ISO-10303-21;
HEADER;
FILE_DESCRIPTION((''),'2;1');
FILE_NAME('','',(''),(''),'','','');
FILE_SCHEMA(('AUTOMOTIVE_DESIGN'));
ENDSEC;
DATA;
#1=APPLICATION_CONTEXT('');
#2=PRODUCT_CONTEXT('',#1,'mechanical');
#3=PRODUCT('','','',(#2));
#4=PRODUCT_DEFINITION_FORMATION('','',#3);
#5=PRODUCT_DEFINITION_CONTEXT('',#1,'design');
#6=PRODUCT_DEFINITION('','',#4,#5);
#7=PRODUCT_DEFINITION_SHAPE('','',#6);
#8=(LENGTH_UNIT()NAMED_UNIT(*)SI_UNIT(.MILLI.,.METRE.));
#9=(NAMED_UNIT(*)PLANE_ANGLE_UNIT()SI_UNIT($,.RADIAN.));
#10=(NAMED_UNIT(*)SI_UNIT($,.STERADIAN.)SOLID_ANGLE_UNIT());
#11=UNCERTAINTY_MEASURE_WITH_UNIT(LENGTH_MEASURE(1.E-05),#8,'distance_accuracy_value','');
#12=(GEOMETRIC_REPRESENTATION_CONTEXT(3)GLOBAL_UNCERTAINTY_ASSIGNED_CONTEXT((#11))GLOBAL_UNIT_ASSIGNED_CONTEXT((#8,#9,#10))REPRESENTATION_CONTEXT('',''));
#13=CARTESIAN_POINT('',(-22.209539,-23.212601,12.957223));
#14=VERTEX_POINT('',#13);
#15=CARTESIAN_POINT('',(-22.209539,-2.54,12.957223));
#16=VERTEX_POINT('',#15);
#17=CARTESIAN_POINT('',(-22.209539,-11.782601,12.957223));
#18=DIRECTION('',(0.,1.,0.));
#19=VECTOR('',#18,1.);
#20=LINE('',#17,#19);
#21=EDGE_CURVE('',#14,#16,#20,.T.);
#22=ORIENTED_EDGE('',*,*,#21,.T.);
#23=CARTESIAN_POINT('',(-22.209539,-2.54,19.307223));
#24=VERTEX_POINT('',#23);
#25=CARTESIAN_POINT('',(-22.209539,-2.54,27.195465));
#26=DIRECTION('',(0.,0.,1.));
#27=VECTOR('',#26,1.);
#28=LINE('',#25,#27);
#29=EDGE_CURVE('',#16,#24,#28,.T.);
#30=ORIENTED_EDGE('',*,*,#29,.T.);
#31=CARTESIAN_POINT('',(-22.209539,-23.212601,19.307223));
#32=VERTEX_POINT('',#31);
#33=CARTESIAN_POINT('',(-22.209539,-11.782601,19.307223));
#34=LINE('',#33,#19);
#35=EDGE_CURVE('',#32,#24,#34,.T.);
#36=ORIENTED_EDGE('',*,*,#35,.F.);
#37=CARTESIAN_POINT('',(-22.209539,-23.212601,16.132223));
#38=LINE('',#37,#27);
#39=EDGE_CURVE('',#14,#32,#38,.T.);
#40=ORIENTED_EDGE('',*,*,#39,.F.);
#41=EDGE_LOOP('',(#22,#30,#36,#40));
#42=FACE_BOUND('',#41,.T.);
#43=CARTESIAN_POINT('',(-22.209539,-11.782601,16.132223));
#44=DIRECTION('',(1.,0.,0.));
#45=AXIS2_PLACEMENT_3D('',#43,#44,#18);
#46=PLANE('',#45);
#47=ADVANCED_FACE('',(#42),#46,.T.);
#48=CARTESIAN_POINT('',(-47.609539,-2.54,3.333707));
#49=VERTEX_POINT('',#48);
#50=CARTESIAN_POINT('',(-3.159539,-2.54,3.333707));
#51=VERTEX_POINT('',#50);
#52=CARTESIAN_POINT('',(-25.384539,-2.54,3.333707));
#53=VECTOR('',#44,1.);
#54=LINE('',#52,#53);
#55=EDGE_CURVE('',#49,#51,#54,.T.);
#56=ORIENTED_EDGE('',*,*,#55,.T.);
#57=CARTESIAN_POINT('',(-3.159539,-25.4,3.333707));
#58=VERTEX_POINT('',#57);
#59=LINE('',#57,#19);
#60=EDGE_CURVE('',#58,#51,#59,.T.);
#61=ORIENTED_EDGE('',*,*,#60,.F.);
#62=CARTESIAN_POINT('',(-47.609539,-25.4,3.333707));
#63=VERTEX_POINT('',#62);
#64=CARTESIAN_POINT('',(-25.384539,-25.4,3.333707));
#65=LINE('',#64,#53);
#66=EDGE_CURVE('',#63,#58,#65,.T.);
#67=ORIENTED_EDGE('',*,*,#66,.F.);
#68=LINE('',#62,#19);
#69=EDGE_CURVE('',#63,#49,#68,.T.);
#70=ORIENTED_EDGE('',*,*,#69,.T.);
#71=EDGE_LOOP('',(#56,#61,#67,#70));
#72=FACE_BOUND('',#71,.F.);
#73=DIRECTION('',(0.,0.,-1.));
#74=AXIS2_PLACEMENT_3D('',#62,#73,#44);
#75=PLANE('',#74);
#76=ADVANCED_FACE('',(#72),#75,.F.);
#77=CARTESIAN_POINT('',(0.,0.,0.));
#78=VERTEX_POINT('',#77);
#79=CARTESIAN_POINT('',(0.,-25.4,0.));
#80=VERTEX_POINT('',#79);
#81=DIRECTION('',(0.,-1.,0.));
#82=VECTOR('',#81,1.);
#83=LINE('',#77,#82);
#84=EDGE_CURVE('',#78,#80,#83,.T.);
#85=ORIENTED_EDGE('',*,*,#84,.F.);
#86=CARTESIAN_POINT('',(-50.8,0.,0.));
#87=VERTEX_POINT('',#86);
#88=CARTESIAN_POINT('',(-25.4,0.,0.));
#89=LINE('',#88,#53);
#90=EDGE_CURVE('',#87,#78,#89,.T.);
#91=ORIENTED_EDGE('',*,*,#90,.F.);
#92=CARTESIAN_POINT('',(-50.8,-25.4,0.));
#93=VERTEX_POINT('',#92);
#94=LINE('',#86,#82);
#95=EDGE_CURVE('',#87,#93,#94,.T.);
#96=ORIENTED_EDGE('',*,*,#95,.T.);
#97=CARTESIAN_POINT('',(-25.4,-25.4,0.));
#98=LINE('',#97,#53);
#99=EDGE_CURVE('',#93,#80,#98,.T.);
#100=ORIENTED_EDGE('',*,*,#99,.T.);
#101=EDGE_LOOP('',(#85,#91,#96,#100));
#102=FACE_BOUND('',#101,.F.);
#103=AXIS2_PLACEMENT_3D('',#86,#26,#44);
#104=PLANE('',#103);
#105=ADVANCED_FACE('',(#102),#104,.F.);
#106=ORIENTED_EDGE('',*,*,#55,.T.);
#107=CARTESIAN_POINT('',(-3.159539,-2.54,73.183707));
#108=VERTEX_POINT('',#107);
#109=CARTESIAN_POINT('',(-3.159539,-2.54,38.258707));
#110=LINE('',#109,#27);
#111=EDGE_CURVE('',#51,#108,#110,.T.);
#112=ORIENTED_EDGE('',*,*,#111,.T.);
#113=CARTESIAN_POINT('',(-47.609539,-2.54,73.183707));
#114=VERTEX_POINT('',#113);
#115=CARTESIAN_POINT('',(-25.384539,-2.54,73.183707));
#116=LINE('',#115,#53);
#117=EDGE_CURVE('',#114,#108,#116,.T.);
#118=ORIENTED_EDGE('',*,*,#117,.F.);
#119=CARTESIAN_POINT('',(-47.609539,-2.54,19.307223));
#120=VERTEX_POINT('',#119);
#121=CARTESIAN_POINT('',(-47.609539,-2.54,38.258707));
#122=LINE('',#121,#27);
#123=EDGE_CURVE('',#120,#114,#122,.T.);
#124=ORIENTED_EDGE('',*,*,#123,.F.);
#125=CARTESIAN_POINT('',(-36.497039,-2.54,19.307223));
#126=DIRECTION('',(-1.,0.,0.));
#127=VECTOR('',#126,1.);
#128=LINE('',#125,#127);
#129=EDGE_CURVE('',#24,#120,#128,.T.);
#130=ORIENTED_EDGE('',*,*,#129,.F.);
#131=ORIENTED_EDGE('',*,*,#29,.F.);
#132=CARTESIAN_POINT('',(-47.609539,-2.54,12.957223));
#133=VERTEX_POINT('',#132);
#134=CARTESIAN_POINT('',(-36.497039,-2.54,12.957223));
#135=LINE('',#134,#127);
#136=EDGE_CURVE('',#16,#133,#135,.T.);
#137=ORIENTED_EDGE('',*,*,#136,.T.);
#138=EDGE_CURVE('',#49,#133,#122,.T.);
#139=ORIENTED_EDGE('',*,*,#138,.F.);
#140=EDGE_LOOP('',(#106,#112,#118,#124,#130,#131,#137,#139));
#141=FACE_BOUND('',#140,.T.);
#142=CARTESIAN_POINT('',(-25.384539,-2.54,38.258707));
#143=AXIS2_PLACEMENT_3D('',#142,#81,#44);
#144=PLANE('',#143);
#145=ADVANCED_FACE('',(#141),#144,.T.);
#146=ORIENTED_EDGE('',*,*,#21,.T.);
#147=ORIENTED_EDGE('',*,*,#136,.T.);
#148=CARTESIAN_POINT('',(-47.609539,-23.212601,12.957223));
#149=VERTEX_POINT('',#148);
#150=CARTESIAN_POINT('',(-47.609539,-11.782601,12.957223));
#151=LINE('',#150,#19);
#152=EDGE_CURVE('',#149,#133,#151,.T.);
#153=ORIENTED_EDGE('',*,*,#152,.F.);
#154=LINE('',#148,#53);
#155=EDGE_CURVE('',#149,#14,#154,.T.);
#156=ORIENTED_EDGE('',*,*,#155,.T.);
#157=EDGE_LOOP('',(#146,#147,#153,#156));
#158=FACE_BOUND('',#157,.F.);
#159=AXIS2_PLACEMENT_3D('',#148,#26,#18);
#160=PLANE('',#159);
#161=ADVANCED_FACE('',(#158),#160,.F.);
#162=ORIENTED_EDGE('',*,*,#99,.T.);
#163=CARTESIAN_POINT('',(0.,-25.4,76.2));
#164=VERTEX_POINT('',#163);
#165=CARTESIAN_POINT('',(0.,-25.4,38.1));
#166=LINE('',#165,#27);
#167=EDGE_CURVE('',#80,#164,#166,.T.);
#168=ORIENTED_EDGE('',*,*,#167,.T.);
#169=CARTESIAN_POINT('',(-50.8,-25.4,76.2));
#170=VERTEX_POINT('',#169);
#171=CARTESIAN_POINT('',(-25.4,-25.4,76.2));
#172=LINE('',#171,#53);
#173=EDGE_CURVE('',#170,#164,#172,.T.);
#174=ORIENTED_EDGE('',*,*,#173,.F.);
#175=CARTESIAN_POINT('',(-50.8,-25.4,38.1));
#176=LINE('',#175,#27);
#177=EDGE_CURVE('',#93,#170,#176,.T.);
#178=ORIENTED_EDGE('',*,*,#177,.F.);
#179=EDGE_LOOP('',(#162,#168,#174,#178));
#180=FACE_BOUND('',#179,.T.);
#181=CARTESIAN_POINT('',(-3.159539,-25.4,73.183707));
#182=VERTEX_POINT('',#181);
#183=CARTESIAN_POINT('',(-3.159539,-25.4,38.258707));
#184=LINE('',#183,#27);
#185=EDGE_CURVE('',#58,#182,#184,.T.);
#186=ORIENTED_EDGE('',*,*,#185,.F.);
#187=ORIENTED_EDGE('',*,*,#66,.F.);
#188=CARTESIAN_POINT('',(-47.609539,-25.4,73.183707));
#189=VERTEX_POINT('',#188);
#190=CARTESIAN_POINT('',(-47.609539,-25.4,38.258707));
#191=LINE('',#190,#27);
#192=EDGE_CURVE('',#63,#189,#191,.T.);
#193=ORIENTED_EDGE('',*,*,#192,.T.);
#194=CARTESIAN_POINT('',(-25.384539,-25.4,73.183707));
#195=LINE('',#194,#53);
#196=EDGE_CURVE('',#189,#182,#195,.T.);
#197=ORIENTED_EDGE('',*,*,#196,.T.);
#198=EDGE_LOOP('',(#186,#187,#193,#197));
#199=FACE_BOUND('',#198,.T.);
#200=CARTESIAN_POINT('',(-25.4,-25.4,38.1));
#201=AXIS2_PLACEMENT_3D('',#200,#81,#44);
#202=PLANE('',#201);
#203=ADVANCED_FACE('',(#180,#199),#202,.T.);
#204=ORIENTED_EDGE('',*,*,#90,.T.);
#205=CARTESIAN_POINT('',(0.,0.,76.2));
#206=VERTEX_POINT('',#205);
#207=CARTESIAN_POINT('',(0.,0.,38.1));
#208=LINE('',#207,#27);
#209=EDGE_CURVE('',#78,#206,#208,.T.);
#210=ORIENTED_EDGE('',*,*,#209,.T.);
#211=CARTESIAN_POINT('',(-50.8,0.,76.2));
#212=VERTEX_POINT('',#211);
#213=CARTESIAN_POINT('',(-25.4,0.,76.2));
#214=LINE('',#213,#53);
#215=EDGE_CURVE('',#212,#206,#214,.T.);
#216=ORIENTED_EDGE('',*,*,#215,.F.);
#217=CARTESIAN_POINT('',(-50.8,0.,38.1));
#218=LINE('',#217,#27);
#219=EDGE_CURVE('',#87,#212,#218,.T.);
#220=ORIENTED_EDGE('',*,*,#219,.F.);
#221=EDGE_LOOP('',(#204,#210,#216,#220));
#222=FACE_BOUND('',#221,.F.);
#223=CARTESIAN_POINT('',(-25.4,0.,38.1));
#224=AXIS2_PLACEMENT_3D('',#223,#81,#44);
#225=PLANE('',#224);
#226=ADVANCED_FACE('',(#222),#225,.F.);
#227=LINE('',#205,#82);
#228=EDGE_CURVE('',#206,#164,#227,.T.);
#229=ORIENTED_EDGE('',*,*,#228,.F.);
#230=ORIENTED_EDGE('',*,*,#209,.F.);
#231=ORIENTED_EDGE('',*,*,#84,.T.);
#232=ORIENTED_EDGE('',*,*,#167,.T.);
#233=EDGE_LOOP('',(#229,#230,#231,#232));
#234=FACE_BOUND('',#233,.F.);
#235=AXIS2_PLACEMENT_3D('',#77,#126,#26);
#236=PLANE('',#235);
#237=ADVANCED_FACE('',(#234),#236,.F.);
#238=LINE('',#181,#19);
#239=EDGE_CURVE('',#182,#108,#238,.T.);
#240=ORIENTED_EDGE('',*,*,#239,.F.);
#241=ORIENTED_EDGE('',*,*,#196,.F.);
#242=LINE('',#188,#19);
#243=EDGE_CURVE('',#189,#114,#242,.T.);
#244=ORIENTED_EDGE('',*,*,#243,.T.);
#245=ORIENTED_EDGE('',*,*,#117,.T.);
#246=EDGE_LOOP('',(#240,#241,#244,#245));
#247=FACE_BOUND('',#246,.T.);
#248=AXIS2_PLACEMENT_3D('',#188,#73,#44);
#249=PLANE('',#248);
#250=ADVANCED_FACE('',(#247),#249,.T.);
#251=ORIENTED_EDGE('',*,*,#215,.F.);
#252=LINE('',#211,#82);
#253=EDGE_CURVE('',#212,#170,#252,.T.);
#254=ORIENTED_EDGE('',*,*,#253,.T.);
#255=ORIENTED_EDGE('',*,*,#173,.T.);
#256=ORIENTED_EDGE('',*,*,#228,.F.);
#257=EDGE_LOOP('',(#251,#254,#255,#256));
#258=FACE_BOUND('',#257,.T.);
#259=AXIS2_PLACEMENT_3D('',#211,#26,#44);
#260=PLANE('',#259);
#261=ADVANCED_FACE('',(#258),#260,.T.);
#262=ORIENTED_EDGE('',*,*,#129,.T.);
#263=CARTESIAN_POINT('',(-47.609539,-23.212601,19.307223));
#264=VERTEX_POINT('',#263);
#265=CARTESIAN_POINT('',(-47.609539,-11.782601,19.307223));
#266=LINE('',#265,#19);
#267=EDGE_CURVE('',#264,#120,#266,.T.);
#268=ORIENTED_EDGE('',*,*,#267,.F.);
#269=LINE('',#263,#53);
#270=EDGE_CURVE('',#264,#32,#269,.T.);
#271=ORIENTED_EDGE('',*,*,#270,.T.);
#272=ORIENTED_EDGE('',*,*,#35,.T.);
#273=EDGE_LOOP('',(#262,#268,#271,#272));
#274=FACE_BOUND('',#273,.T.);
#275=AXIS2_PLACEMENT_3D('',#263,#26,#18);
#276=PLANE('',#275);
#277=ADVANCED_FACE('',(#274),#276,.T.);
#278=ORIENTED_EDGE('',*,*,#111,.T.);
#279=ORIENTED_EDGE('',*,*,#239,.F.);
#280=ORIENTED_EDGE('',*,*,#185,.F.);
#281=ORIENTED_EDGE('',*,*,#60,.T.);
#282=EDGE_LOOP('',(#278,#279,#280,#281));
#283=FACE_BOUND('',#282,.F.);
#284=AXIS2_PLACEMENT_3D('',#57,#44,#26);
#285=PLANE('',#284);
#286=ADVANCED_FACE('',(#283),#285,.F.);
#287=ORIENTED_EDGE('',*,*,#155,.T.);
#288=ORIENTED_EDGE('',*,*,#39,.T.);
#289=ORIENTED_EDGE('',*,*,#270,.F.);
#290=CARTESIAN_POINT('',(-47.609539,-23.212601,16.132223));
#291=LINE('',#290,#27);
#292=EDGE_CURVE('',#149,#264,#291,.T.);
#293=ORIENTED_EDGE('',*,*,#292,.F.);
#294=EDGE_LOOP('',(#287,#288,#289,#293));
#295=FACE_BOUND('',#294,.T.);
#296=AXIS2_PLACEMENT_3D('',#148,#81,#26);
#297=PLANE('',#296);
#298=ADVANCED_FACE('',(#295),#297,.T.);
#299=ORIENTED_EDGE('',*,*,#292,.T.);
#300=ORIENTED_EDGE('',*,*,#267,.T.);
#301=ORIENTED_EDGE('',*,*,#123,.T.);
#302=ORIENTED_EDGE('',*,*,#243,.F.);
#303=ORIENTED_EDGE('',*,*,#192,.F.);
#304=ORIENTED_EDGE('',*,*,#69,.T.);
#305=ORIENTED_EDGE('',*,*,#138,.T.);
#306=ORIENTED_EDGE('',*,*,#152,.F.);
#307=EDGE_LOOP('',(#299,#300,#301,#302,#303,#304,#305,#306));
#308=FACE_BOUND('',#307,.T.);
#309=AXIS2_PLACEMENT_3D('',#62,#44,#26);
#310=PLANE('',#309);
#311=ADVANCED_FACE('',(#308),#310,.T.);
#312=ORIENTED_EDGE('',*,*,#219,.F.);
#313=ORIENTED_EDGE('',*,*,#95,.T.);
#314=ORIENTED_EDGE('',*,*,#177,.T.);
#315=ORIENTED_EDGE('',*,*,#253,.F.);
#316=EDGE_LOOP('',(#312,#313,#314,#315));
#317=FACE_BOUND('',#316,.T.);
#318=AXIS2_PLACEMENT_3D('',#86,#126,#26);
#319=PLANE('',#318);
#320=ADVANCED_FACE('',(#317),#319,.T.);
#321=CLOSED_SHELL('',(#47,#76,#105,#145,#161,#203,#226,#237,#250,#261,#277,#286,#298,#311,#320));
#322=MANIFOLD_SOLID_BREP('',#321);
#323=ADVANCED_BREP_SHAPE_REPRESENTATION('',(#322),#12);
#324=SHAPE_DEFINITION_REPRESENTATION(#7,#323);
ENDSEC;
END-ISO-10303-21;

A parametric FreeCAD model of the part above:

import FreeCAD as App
import Part
import Sketcher

V = App.Vector
Q = App.Units.Quantity


def add_polygon(sketch, points):
    """Adds a closed chain of lines whose ends are joined by coincident constraints."""
    first, n = sketch.GeometryCount, len(points)
    for a, b in zip(points, points[1:] + points[:1]):
        sketch.addGeometry(Part.LineSegment(App.Vector(*a, 0), App.Vector(*b, 0)), False)
    for i in range(n):
        sketch.addConstraint(Sketcher.Constraint("Coincident", first + i, 2, first + (i + 1) % n, 1))

doc = App.newDocument("Part")
body = doc.addObject("PartDesign::Body", "Body")

# Sketch on XZ plane
sketch1 = body.newObject("Sketcher::SketchObject", "Sketch")
sketch1.AttachmentSupport = (doc.getObject("XZ_Plane"), [""])
sketch1.MapMode = "FlatFace"
add_polygon(sketch1, [(-51, 76), (-51, 0), (0, 0), (0, 76)])  # lines 0-3
sketch1.addConstraint(Sketcher.Constraint("Vertical", 0))
sketch1.addConstraint(Sketcher.Constraint("Horizontal", 1))
sketch1.addConstraint(Sketcher.Constraint("Vertical", 2))
sketch1.addConstraint(Sketcher.Constraint("Horizontal", 3))
sketch1.addConstraint(Sketcher.Constraint("Coincident", 1, 2, -1, 1))
sketch1.addConstraint(Sketcher.Constraint("DistanceX", 1, 1, 1, 2, Q("2 in")))
sketch1.addConstraint(Sketcher.Constraint("DistanceY", 0, 2, 0, 1, Q("3 in")))
pad1 = body.newObject("PartDesign::Pad", "Pad")
pad1.Profile = sketch1
pad1.Length = Q("1 in")

# Sketch on XZ plane
sketch2 = body.newObject("Sketcher::SketchObject", "Sketch001")
sketch2.AttachmentSupport = (doc.getObject("XZ_Plane"), [""])
sketch2.MapMode = "FlatFace"
sketch2.AttachmentOffset = App.Placement(V(0, 0, 1 * 25.4), App.Rotation())
add_polygon(sketch2, [(-48, 73), (-48, 3), (-3, 3), (-3, 73)])  # lines 0-3
sketch2.addConstraint(Sketcher.Constraint("Vertical", 0))
sketch2.addConstraint(Sketcher.Constraint("Horizontal", 1))
sketch2.addConstraint(Sketcher.Constraint("Vertical", 2))
sketch2.addConstraint(Sketcher.Constraint("Horizontal", 3))
sketch2.addConstraint(Sketcher.Constraint("DistanceX", 1, 1, 1, 2, Q("1.75 in")))
sketch2.addConstraint(Sketcher.Constraint("DistanceY", 0, 2, 0, 1, Q("2.75 in")))
sketch2.addConstraint(Sketcher.Constraint("DistanceX", 0, 2, -1, 1, 47.609539))
sketch2.addConstraint(Sketcher.Constraint("DistanceY", -1, 1, 0, 2, 3.333707))
pocket1 = body.newObject("PartDesign::Pocket", "Pocket")
pocket1.Profile = sketch2
pocket1.Length = Q("0.9 in")

# Sketch on YZ plane
sketch3 = body.newObject("Sketcher::SketchObject", "Sketch002")
sketch3.AttachmentSupport = (doc.getObject("YZ_Plane"), [""])
sketch3.MapMode = "FlatFace"
sketch3.AttachmentOffset = App.Placement(V(0, 0, -47.609539), App.Rotation())
add_polygon(sketch3, [(-23, 19), (-23, 13), (0, 13), (0, 19)])  # lines 0-3
sketch3.addConstraint(Sketcher.Constraint("Vertical", 0))
sketch3.addConstraint(Sketcher.Constraint("Horizontal", 1))
sketch3.addConstraint(Sketcher.Constraint("Vertical", 2))
sketch3.addConstraint(Sketcher.Constraint("Horizontal", 3))
sketch3.addConstraint(Sketcher.Constraint("DistanceX", 1, 1, 1, 2, Q("0.9 in")))
sketch3.addConstraint(Sketcher.Constraint("DistanceY", 0, 2, 0, 1, Q("0.25 in")))
sketch3.addConstraint(Sketcher.Constraint("DistanceX", 0, 2, -1, 1, 23.212601))
sketch3.addConstraint(Sketcher.Constraint("DistanceY", -1, 1, 0, 2, 12.957223))
pad2 = body.newObject("PartDesign::Pad", "Pad001")
pad2.Profile = sketch3
pad2.Length = Q("1 in")

doc.recompute()
